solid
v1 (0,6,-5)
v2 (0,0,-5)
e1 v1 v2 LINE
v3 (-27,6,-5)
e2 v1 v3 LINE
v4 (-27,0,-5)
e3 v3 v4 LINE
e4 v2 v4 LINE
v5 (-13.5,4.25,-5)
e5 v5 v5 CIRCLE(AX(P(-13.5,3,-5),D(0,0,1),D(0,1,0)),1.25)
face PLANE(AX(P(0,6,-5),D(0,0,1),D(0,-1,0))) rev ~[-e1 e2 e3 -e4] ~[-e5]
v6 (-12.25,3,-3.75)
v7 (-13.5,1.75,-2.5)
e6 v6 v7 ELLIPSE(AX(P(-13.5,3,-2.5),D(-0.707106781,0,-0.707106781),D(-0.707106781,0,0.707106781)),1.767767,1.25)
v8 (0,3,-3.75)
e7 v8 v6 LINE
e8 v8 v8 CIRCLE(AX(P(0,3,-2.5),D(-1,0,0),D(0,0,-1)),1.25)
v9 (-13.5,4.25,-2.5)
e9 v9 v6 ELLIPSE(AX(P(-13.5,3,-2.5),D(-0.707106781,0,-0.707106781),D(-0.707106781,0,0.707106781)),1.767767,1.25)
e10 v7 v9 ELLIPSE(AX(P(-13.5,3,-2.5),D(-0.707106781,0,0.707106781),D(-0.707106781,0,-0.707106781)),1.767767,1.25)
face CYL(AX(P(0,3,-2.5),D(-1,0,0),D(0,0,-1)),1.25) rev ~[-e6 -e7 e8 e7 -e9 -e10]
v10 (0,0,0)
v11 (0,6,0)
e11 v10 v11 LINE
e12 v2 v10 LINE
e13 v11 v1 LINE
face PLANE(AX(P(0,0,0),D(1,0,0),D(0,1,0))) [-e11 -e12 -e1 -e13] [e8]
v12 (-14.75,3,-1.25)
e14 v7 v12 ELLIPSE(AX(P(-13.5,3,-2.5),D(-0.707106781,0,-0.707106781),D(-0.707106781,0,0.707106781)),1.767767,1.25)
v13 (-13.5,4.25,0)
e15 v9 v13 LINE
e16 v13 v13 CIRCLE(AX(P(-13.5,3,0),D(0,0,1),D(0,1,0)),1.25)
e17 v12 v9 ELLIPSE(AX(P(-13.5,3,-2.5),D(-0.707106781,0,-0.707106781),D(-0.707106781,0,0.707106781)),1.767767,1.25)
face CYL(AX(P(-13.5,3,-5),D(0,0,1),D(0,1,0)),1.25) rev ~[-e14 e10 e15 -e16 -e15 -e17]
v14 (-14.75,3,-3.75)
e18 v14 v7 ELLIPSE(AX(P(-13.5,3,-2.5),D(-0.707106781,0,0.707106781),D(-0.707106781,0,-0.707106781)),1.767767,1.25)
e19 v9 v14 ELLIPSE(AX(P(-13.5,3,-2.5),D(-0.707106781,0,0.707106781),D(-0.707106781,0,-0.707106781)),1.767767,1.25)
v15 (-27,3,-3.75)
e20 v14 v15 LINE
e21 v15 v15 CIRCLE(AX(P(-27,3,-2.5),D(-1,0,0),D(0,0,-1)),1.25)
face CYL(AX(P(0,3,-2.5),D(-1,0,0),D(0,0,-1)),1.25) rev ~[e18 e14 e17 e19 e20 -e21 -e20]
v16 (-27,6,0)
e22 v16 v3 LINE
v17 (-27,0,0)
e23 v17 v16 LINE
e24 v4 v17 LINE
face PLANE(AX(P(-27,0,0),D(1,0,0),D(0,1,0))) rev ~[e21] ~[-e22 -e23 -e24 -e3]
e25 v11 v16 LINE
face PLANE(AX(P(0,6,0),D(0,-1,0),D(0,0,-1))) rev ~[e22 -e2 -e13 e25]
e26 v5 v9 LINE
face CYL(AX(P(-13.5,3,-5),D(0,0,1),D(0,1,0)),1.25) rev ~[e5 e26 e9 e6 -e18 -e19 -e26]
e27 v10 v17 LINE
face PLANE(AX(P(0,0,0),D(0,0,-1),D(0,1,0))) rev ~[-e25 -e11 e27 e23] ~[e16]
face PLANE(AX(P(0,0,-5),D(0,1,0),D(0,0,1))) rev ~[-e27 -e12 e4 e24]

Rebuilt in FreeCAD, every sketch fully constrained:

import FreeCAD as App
import Part
import Sketcher

V = App.Vector


def add_polygon(sketch, points):
    """Adds a closed chain of lines whose ends are joined by coincident constraints."""
    first, n = sketch.GeometryCount, len(points)
    for a, b in zip(points, points[1:] + points[:1]):
        sketch.addGeometry(Part.LineSegment(App.Vector(*a, 0), App.Vector(*b, 0)), False)
    for i in range(n):
        sketch.addConstraint(Sketcher.Constraint("Coincident", first + i, 2, first + (i + 1) % n, 1))

doc = App.newDocument("Part")
body = doc.addObject("PartDesign::Body", "Body")

sketch1 = doc.addObject("Sketcher::SketchObject", "Sketch")
body.addObject(sketch1)
sketch1.AttachmentSupport = (doc.YZ_Plane, [""])
sketch1.MapMode = "FlatFace"
add_polygon(sketch1, [(6, 0), (0, 0), (0, -5), (6, -5)])
sketch1.addConstraint(Sketcher.Constraint("Horizontal", 0))
sketch1.addConstraint(Sketcher.Constraint("Vertical", 1))
sketch1.addConstraint(Sketcher.Constraint("Horizontal", 2))
sketch1.addConstraint(Sketcher.Constraint("Vertical", 3))
sketch1.addConstraint(Sketcher.Constraint("Coincident", 0, 2, -1, 1))
sketch1.addConstraint(Sketcher.Constraint("DistanceX", 0, 2, 0, 1, 6.0))
sketch1.addConstraint(Sketcher.Constraint("DistanceY", 1, 2, 1, 1, 5.0))
pad1 = doc.addObject("PartDesign::Pad", "Pad")
body.addObject(pad1)
pad1.Profile = sketch1
pad1.Length = 27
pad1.Reversed = True

sketch2 = doc.addObject("Sketcher::SketchObject", "Sketch001")
body.addObject(sketch2)
sketch2.AttachmentSupport = (doc.YZ_Plane, [""])
sketch2.MapMode = "FlatFace"
sketch2.addGeometry(Part.Circle(V(3, -2.5, 0), V(0, 0, 1), 1.2), False)
sketch2.addConstraint(Sketcher.Constraint("Diameter", 0, 2.5))
sketch2.addConstraint(Sketcher.Constraint("DistanceX", -1, 1, 0, 3, 3.0))
sketch2.addConstraint(Sketcher.Constraint("DistanceY", 0, 3, -1, 1, 2.5))
doc.recompute()
hole = doc.addObject("PartDesign::Hole", "Hole")
body.addObject(hole)
hole.Profile = sketch2
hole.ThreadType = "None"
hole.Diameter = 2.5
hole.DepthType = "ThroughAll"

sketch3 = doc.addObject("Sketcher::SketchObject", "Sketch002")
body.addObject(sketch3)
sketch3.AttachmentSupport = (doc.XY_Plane, [""])
sketch3.MapMode = "FlatFace"
sketch3.AttachmentOffset = App.Placement(V(0, 0, -5), App.Rotation())
sketch3.addGeometry(Part.Circle(V(-13.5, 3, 0), V(0, 0, 1), 1.2), False)
sketch3.addConstraint(Sketcher.Constraint("Diameter", 0, 2.5))
sketch3.addConstraint(Sketcher.Constraint("DistanceY", -1, 1, 0, 3, 3.0))
sketch3.addConstraint(Sketcher.Constraint("DistanceX", 0, 3, -1, 1, 13.5))
doc.recompute()
hole2 = doc.addObject("PartDesign::Hole", "Hole001")
body.addObject(hole2)
hole2.Profile = sketch3
hole2.ThreadType = "None"
hole2.Diameter = 2.5
hole2.DepthType = "ThroughAll"
hole2.Reversed = True

doc.recompute()
